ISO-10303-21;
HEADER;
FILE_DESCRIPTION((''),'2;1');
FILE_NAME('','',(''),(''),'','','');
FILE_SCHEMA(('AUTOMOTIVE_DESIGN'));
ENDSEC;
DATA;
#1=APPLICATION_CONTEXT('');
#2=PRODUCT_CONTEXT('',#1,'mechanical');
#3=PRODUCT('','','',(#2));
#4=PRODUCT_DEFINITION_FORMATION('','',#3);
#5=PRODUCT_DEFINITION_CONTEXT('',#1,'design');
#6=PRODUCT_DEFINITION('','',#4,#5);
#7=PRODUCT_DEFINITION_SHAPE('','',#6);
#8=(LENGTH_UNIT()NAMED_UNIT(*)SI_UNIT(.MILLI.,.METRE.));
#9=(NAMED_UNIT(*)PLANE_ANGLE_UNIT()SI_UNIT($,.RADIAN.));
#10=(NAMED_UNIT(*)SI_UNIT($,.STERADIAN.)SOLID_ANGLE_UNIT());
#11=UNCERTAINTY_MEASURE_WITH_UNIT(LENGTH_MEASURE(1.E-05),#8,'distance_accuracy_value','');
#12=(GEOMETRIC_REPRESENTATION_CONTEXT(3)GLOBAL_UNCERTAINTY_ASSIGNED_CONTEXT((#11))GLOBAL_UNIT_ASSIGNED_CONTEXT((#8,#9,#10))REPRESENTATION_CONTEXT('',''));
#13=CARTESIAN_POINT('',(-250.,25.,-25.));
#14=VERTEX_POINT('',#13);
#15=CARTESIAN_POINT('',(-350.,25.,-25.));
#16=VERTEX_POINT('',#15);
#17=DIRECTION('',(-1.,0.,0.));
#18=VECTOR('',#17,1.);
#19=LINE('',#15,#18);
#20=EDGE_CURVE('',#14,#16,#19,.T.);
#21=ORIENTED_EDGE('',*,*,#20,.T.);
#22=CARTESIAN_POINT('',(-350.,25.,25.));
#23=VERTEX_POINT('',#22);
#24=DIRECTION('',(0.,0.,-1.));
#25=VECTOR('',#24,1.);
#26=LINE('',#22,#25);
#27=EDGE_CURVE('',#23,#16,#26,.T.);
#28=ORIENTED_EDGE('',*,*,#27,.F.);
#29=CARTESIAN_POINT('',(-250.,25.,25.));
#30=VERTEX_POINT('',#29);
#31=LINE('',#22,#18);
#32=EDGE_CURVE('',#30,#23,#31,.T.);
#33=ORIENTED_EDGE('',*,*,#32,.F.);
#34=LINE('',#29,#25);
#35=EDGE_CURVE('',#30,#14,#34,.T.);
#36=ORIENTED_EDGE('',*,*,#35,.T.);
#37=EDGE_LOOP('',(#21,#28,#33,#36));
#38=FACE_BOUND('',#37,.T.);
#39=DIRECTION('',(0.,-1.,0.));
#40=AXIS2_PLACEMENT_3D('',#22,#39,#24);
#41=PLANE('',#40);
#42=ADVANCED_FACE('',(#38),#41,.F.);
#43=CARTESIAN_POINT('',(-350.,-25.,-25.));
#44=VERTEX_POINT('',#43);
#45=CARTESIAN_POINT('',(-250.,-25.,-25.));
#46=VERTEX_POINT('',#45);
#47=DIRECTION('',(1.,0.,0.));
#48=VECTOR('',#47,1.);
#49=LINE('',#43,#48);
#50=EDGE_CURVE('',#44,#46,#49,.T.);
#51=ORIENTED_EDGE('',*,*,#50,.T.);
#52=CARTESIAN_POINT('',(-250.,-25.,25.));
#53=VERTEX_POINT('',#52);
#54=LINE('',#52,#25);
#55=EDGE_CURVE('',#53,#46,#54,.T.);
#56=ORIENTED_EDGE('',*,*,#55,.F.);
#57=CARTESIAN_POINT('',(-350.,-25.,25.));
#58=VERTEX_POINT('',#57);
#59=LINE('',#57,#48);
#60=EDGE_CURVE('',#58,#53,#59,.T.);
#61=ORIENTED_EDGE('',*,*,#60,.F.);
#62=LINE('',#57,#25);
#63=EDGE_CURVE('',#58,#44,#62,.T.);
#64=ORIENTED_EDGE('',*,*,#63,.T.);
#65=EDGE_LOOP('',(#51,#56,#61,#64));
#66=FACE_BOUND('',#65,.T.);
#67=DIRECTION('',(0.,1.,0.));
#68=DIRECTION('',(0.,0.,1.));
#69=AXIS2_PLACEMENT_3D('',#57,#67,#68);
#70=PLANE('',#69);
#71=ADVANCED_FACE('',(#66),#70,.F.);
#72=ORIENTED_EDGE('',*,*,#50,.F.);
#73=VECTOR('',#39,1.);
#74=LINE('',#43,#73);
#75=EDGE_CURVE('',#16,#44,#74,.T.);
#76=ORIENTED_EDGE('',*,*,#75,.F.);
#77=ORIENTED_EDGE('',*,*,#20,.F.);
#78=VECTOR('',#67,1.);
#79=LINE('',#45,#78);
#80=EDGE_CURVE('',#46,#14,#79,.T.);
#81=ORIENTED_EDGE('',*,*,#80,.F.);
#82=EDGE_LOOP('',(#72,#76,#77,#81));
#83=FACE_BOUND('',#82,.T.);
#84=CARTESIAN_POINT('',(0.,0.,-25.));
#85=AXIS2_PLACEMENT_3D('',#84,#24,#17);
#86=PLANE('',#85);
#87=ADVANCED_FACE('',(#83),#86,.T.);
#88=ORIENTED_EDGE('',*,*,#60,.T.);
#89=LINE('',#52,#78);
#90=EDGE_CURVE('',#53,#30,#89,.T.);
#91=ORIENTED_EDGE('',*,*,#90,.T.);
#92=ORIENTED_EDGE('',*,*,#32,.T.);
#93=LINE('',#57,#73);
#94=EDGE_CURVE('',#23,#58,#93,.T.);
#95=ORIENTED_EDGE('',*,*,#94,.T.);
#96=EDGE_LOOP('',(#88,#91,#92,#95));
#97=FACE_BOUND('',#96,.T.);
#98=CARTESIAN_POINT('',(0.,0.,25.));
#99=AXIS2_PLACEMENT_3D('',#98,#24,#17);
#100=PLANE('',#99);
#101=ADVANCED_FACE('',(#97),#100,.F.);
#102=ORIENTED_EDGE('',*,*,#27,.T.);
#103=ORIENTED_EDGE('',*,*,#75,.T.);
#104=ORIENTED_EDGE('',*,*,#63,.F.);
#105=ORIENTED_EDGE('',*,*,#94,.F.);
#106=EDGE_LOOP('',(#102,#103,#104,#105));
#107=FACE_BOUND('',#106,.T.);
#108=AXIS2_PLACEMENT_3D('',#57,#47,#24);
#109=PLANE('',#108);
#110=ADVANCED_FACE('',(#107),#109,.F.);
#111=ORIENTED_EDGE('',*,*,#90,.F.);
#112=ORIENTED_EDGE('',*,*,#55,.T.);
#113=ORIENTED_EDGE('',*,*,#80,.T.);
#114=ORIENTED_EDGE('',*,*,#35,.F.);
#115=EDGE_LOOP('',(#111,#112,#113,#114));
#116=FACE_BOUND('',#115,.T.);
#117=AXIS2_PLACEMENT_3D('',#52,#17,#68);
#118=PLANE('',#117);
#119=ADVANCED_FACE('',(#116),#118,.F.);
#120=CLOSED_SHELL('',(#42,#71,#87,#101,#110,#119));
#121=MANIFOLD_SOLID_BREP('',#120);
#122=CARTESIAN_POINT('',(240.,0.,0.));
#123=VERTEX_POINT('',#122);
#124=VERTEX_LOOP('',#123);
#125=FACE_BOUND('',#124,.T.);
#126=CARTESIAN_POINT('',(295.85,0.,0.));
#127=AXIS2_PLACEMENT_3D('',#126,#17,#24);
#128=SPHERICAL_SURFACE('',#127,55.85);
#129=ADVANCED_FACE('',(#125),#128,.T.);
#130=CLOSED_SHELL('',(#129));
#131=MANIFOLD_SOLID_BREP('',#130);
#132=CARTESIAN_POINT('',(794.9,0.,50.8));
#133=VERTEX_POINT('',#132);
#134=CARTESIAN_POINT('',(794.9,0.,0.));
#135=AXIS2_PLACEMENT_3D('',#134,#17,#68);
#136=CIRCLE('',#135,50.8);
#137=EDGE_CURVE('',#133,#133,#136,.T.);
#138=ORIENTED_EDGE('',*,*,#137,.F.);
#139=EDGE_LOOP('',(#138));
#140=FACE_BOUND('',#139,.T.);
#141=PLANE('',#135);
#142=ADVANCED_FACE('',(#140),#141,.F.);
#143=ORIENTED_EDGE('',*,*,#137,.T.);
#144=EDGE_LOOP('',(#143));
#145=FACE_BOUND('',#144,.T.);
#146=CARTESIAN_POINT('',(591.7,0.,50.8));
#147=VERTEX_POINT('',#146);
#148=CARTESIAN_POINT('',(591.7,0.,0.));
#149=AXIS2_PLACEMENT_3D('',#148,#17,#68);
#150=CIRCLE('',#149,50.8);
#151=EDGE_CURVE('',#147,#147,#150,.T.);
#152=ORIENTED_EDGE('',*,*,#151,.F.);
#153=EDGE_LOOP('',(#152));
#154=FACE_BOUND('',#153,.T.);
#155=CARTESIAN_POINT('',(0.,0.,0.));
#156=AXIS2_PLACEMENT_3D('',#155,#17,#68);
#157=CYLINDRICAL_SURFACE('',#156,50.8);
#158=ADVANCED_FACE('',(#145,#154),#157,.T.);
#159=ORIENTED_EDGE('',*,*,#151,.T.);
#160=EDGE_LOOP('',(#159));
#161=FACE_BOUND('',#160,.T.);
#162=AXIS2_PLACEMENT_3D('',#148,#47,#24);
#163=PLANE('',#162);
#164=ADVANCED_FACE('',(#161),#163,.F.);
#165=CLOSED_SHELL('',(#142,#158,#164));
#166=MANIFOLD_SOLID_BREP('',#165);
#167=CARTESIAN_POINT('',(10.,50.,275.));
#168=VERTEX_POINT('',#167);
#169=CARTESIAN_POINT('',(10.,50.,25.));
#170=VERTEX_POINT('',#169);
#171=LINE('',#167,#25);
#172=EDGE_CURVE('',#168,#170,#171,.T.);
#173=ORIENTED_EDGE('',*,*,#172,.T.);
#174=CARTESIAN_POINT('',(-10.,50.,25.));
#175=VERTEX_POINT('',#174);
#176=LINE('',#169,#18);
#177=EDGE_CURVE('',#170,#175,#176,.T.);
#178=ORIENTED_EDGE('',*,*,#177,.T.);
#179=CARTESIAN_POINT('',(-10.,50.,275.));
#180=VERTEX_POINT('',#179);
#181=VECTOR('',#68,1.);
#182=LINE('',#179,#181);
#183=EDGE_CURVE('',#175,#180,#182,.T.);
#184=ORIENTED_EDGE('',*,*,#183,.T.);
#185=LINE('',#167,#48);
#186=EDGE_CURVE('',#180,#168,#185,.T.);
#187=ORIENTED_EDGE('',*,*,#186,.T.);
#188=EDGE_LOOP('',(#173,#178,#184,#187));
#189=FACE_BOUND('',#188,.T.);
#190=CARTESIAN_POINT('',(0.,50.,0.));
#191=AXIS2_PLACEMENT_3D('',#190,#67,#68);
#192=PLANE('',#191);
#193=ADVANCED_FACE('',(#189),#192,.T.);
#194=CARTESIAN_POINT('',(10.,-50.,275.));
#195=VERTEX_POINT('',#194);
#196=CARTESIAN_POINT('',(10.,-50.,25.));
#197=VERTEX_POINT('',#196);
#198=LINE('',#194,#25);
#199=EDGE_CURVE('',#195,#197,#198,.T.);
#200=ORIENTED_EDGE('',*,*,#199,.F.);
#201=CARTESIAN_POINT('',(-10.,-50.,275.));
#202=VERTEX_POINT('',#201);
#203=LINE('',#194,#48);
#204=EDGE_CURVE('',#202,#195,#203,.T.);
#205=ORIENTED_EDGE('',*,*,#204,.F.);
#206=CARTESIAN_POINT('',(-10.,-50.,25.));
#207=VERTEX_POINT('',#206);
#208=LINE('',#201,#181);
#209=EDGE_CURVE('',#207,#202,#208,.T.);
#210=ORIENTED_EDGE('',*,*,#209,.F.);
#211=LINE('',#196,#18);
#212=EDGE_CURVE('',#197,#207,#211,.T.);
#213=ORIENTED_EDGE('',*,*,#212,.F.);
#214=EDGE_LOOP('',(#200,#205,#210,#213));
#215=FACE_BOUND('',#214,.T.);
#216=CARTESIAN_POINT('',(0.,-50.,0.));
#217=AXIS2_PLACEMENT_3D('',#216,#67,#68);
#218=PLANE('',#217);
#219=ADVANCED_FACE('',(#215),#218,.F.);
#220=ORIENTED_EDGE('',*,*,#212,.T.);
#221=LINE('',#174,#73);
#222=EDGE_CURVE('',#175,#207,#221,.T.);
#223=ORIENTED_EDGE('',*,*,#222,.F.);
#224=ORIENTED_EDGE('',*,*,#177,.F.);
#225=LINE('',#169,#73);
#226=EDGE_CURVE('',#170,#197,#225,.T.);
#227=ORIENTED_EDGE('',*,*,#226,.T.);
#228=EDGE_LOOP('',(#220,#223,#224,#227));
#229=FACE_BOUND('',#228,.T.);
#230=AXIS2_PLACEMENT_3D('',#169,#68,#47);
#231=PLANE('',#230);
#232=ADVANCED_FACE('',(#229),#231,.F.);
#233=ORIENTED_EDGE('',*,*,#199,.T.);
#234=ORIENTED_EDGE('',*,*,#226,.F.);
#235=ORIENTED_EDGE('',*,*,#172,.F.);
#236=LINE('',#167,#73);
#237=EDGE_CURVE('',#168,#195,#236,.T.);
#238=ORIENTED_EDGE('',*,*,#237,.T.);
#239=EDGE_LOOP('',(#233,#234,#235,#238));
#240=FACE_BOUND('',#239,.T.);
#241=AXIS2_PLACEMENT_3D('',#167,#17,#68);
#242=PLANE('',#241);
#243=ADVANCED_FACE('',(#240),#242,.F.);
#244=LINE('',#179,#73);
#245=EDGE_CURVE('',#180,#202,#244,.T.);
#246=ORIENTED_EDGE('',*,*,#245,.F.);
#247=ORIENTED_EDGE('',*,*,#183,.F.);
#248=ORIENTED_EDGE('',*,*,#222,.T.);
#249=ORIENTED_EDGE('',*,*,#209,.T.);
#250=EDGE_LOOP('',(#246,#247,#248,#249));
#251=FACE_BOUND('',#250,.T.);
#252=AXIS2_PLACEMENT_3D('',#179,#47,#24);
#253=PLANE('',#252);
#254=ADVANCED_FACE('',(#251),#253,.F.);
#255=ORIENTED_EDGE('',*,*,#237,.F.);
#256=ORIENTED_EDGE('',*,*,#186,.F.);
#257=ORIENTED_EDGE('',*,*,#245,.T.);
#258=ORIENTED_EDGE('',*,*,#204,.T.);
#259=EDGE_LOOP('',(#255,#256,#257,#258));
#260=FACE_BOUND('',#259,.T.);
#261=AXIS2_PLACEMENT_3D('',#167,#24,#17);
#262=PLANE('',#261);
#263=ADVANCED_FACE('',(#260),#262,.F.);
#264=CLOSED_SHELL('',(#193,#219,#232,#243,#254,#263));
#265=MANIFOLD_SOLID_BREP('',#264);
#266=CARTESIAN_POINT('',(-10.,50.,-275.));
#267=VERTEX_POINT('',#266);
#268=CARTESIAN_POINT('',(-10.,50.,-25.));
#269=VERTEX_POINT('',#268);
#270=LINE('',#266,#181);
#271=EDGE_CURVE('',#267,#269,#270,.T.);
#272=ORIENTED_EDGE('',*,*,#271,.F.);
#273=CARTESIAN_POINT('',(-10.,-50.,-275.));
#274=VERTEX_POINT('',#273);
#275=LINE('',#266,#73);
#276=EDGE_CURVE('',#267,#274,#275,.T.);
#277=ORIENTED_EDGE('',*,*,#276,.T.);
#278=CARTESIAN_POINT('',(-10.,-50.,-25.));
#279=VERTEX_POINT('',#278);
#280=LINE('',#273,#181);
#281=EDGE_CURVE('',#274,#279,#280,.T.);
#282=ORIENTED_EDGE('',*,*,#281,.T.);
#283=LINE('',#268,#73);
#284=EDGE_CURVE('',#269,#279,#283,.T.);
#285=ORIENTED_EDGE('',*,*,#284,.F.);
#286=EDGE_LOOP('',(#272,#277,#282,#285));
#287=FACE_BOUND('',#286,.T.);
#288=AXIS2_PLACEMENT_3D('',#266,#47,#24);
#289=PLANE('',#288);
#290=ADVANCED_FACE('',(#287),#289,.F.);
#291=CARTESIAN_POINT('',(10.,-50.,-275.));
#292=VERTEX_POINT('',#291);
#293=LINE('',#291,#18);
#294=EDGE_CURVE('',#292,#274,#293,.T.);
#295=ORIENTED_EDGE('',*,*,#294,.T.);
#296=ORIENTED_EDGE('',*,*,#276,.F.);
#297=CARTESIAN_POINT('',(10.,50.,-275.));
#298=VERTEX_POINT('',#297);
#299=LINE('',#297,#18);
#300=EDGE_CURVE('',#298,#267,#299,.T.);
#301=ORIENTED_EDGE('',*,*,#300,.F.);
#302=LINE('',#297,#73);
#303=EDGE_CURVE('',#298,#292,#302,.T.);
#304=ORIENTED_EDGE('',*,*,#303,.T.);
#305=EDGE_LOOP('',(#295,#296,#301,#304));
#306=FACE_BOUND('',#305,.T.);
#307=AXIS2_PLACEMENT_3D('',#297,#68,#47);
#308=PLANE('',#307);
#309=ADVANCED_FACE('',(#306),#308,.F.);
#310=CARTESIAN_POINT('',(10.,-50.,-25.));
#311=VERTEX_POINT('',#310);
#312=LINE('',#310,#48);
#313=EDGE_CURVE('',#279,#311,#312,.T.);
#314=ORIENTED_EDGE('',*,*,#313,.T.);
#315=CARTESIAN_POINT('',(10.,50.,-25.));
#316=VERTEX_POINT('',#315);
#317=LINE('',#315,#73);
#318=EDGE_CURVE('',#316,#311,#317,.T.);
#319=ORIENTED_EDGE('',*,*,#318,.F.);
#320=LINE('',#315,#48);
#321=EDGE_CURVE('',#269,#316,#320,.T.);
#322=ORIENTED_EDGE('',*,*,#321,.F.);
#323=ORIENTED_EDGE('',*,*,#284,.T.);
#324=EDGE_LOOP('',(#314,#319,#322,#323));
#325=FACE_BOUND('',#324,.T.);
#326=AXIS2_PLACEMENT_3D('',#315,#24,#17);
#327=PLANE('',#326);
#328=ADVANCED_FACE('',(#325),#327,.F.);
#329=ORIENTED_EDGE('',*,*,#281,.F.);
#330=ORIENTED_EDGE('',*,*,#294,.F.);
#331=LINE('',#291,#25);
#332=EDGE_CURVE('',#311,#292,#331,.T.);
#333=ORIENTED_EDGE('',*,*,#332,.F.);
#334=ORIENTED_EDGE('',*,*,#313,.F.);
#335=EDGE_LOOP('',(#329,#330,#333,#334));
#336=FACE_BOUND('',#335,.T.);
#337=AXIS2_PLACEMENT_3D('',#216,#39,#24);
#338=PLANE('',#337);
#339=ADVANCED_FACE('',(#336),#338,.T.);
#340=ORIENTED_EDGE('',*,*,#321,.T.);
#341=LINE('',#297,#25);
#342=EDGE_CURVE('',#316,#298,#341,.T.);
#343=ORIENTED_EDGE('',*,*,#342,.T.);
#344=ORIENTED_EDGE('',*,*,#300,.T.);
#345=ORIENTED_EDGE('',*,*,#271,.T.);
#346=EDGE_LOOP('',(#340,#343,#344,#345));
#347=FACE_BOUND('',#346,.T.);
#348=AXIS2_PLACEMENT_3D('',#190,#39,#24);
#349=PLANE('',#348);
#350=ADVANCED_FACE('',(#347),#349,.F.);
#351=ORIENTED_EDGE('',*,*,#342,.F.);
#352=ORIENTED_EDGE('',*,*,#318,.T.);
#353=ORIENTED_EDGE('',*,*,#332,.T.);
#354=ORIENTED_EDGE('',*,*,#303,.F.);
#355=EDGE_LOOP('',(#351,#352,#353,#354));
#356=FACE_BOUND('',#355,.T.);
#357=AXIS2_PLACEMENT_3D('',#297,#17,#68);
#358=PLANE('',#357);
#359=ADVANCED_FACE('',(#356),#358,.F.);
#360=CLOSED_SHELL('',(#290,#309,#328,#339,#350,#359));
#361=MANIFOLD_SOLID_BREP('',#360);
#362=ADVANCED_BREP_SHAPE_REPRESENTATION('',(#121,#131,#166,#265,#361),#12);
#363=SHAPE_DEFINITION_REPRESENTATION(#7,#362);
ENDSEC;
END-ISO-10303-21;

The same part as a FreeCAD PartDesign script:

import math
import FreeCAD as App
import Part
import Sketcher
Q = App.Units.Quantity


def add_polygon(sketch, points):
    """Adds a closed chain of lines whose ends are joined by coincident constraints."""
    first, n = sketch.GeometryCount, len(points)
    for a, b in zip(points, points[1:] + points[:1]):
        sketch.addGeometry(Part.LineSegment(App.Vector(*a, 0), App.Vector(*b, 0)), False)
    for i in range(n):
        sketch.addConstraint(Sketcher.Constraint("Coincident", first + i, 2, first + (i + 1) % n, 1))

doc = App.newDocument("Part")
params = doc.addObject("Spreadsheet::Sheet", "Params")
for row, (alias, value) in enumerate([
    ("sketch1_width", "100 mm"),
    ("sketch1_height", "50 mm"),
    ("pad1_length", "50 mm"),
    ("sketch2_radius", "55.85 mm"),
    ("sketch2_width", "203.2 mm"),
    ("sketch2_height", "50.8 mm"),
    ("revolution_angle", "360 deg"),
    ("sketch3_width", "20 mm"),
    ("sketch3_height", "250 mm"),
    ("pad2_length", "100 mm"),
    ("sketch4_width", "20 mm"),
    ("sketch4_height", "250 mm"),
    ("pad3_length", "100 mm"),
], start=1):
    params.set(f"A{row}", alias)
    params.set(f"B{row}", "=" + value)
    params.setAlias(f"B{row}", alias)

body = doc.addObject("PartDesign::Body", "Body")

# Sketch on XY plane
sketch1 = body.newObject("Sketcher::SketchObject", "Sketch")
sketch1.AttachmentSupport = (doc.getObject("XY_Plane"), [""])
sketch1.MapMode = "FlatFace"
add_polygon(sketch1, [(-350, 25), (-350, -25), (-250, -25), (-250, 25)])  # lines 0-3
sketch1.addConstraint(Sketcher.Constraint("Vertical", 0))
sketch1.addConstraint(Sketcher.Constraint("Horizontal", 1))
sketch1.addConstraint(Sketcher.Constraint("Vertical", 2))
sketch1.addConstraint(Sketcher.Constraint("Horizontal", 3))
sketch1.addConstraint(Sketcher.Constraint("DistanceX", 1, 1, 1, 2, Q("100 mm")))
sketch1.addConstraint(Sketcher.Constraint("DistanceY", 0, 2, 0, 1, Q("50 mm")))
sketch1.addConstraint(Sketcher.Constraint("DistanceX", 0, 2, -1, 1, Q("350 mm")))
sketch1.addConstraint(Sketcher.Constraint("DistanceY", 0, 2, -1, 1, Q("25 mm")))
sketch1.setExpression("Constraints[8]", "Params.sketch1_width")
sketch1.setExpression("Constraints[9]", "Params.sketch1_height")
pad1 = body.newObject("PartDesign::Pad", "Pad")
pad1.Profile = sketch1
pad1.setExpression("Length", "Params.pad1_length")
pad1.Midplane = True
body2 = doc.addObject("PartDesign::Body", "Body001")
body2.AllowCompound = True

# Sketch on XZ plane
sketch2 = body2.newObject("Sketcher::SketchObject", "Sketch001")
sketch2.AttachmentSupport = (doc.getObject("XZ_Plane001"), [""])
sketch2.MapMode = "FlatFace"
sketch2.addGeometry(Part.LineSegment(App.Vector(240, 0, 0), App.Vector(352, 0, 0)), False)  # 0
sketch2.addGeometry(Part.ArcOfCircle(Part.Circle(App.Vector(296, 0, 0), App.Vector(0, 0, 1), 56), math.radians(180), math.radians(360)), False)  # 1
add_polygon(sketch2, [(592, -51), (592, 0), (795, 0), (795, -51)])  # lines 2-5
sketch2.addConstraint(Sketcher.Constraint("Coincident", 0, 1, 1, 1))
sketch2.addConstraint(Sketcher.Constraint("Coincident", 1, 2, 0, 2))
sketch2.addConstraint(Sketcher.Constraint("Horizontal", 0))
sketch2.addConstraint(Sketcher.Constraint("Vertical", 2))
sketch2.addConstraint(Sketcher.Constraint("Horizontal", 3))
sketch2.addConstraint(Sketcher.Constraint("Vertical", 4))
sketch2.addConstraint(Sketcher.Constraint("Horizontal", 5))
sketch2.addConstraint(Sketcher.Constraint("PointOnObject", 1, 3, -1))
sketch2.addConstraint(Sketcher.Constraint("PointOnObject", 0, 1, -1))
sketch2.addConstraint(Sketcher.Constraint("PointOnObject", 2, 2, -1))
sketch2.addConstraint(Sketcher.Constraint("Radius", 1, Q("55.85 mm")))
sketch2.addConstraint(Sketcher.Constraint("DistanceX", 3, 1, 3, 2, Q("203.2 mm")))
sketch2.addConstraint(Sketcher.Constraint("DistanceY", 2, 1, 2, 2, Q("50.8 mm")))
sketch2.addConstraint(Sketcher.Constraint("DistanceX", -1, 1, 0, 1, Q("240 mm")))
sketch2.addConstraint(Sketcher.Constraint("DistanceX", 1, 2, 2, 2, Q("240 mm")))
sketch2.setExpression("Constraints[14]", "Params.sketch2_radius")
sketch2.setExpression("Constraints[15]", "Params.sketch2_width")
sketch2.setExpression("Constraints[16]", "Params.sketch2_height")
revolution = body2.newObject("PartDesign::Revolution", "Revolution")
revolution.Profile = sketch2
revolution.ReferenceAxis = (sketch2, ["H_Axis"])
revolution.setExpression("Angle", "Params.revolution_angle")
body3 = doc.addObject("PartDesign::Body", "Body002")

# Sketch on XZ plane
sketch3 = body3.newObject("Sketcher::SketchObject", "Sketch002")
sketch3.AttachmentSupport = (doc.getObject("XZ_Plane002"), [""])
sketch3.MapMode = "FlatFace"
add_polygon(sketch3, [(-10, -275), (-10, -25), (10, -25), (10, -275)])  # lines 0-3
sketch3.addConstraint(Sketcher.Constraint("Vertical", 0))
sketch3.addConstraint(Sketcher.Constraint("Horizontal", 1))
sketch3.addConstraint(Sketcher.Constraint("Vertical", 2))
sketch3.addConstraint(Sketcher.Constraint("Horizontal", 3))
sketch3.addConstraint(Sketcher.Constraint("DistanceX", 1, 1, 1, 2, Q("20 mm")))
sketch3.addConstraint(Sketcher.Constraint("DistanceY", 0, 1, 0, 2, Q("250 mm")))
sketch3.addConstraint(Sketcher.Constraint("DistanceX", 0, 2, -1, 1, Q("10 mm")))
sketch3.addConstraint(Sketcher.Constraint("DistanceY", 0, 2, -1, 1, Q("25 mm")))
sketch3.setExpression("Constraints[8]", "Params.sketch3_width")
sketch3.setExpression("Constraints[9]", "Params.sketch3_height")
pad2 = body3.newObject("PartDesign::Pad", "Pad001")
pad2.Profile = sketch3
pad2.setExpression("Length", "Params.pad2_length")
pad2.Midplane = True
body4 = doc.addObject("PartDesign::Body", "Body003")

# Sketch on XZ plane
sketch4 = body4.newObject("Sketcher::SketchObject", "Sketch003")
sketch4.AttachmentSupport = (doc.getObject("XZ_Plane003"), [""])
sketch4.MapMode = "FlatFace"
add_polygon(sketch4, [(-10, 25), (-10, 275), (10, 275), (10, 25)])  # lines 0-3
sketch4.addConstraint(Sketcher.Constraint("Vertical", 0))
sketch4.addConstraint(Sketcher.Constraint("Horizontal", 1))
sketch4.addConstraint(Sketcher.Constraint("Vertical", 2))
sketch4.addConstraint(Sketcher.Constraint("Horizontal", 3))
sketch4.addConstraint(Sketcher.Constraint("DistanceX", 1, 1, 1, 2, Q("20 mm")))
sketch4.addConstraint(Sketcher.Constraint("DistanceY", 0, 1, 0, 2, Q("250 mm")))
sketch4.addConstraint(Sketcher.Constraint("DistanceX", 0, 2, -1, 1, Q("10 mm")))
sketch4.addConstraint(Sketcher.Constraint("DistanceY", -1, 1, 0, 2, Q("275 mm")))
sketch4.setExpression("Constraints[8]", "Params.sketch4_width")
sketch4.setExpression("Constraints[9]", "Params.sketch4_height")
pad3 = body4.newObject("PartDesign::Pad", "Pad002")
pad3.Profile = sketch4
pad3.setExpression("Length", "Params.pad3_length")
pad3.Midplane = True

doc.recompute()
